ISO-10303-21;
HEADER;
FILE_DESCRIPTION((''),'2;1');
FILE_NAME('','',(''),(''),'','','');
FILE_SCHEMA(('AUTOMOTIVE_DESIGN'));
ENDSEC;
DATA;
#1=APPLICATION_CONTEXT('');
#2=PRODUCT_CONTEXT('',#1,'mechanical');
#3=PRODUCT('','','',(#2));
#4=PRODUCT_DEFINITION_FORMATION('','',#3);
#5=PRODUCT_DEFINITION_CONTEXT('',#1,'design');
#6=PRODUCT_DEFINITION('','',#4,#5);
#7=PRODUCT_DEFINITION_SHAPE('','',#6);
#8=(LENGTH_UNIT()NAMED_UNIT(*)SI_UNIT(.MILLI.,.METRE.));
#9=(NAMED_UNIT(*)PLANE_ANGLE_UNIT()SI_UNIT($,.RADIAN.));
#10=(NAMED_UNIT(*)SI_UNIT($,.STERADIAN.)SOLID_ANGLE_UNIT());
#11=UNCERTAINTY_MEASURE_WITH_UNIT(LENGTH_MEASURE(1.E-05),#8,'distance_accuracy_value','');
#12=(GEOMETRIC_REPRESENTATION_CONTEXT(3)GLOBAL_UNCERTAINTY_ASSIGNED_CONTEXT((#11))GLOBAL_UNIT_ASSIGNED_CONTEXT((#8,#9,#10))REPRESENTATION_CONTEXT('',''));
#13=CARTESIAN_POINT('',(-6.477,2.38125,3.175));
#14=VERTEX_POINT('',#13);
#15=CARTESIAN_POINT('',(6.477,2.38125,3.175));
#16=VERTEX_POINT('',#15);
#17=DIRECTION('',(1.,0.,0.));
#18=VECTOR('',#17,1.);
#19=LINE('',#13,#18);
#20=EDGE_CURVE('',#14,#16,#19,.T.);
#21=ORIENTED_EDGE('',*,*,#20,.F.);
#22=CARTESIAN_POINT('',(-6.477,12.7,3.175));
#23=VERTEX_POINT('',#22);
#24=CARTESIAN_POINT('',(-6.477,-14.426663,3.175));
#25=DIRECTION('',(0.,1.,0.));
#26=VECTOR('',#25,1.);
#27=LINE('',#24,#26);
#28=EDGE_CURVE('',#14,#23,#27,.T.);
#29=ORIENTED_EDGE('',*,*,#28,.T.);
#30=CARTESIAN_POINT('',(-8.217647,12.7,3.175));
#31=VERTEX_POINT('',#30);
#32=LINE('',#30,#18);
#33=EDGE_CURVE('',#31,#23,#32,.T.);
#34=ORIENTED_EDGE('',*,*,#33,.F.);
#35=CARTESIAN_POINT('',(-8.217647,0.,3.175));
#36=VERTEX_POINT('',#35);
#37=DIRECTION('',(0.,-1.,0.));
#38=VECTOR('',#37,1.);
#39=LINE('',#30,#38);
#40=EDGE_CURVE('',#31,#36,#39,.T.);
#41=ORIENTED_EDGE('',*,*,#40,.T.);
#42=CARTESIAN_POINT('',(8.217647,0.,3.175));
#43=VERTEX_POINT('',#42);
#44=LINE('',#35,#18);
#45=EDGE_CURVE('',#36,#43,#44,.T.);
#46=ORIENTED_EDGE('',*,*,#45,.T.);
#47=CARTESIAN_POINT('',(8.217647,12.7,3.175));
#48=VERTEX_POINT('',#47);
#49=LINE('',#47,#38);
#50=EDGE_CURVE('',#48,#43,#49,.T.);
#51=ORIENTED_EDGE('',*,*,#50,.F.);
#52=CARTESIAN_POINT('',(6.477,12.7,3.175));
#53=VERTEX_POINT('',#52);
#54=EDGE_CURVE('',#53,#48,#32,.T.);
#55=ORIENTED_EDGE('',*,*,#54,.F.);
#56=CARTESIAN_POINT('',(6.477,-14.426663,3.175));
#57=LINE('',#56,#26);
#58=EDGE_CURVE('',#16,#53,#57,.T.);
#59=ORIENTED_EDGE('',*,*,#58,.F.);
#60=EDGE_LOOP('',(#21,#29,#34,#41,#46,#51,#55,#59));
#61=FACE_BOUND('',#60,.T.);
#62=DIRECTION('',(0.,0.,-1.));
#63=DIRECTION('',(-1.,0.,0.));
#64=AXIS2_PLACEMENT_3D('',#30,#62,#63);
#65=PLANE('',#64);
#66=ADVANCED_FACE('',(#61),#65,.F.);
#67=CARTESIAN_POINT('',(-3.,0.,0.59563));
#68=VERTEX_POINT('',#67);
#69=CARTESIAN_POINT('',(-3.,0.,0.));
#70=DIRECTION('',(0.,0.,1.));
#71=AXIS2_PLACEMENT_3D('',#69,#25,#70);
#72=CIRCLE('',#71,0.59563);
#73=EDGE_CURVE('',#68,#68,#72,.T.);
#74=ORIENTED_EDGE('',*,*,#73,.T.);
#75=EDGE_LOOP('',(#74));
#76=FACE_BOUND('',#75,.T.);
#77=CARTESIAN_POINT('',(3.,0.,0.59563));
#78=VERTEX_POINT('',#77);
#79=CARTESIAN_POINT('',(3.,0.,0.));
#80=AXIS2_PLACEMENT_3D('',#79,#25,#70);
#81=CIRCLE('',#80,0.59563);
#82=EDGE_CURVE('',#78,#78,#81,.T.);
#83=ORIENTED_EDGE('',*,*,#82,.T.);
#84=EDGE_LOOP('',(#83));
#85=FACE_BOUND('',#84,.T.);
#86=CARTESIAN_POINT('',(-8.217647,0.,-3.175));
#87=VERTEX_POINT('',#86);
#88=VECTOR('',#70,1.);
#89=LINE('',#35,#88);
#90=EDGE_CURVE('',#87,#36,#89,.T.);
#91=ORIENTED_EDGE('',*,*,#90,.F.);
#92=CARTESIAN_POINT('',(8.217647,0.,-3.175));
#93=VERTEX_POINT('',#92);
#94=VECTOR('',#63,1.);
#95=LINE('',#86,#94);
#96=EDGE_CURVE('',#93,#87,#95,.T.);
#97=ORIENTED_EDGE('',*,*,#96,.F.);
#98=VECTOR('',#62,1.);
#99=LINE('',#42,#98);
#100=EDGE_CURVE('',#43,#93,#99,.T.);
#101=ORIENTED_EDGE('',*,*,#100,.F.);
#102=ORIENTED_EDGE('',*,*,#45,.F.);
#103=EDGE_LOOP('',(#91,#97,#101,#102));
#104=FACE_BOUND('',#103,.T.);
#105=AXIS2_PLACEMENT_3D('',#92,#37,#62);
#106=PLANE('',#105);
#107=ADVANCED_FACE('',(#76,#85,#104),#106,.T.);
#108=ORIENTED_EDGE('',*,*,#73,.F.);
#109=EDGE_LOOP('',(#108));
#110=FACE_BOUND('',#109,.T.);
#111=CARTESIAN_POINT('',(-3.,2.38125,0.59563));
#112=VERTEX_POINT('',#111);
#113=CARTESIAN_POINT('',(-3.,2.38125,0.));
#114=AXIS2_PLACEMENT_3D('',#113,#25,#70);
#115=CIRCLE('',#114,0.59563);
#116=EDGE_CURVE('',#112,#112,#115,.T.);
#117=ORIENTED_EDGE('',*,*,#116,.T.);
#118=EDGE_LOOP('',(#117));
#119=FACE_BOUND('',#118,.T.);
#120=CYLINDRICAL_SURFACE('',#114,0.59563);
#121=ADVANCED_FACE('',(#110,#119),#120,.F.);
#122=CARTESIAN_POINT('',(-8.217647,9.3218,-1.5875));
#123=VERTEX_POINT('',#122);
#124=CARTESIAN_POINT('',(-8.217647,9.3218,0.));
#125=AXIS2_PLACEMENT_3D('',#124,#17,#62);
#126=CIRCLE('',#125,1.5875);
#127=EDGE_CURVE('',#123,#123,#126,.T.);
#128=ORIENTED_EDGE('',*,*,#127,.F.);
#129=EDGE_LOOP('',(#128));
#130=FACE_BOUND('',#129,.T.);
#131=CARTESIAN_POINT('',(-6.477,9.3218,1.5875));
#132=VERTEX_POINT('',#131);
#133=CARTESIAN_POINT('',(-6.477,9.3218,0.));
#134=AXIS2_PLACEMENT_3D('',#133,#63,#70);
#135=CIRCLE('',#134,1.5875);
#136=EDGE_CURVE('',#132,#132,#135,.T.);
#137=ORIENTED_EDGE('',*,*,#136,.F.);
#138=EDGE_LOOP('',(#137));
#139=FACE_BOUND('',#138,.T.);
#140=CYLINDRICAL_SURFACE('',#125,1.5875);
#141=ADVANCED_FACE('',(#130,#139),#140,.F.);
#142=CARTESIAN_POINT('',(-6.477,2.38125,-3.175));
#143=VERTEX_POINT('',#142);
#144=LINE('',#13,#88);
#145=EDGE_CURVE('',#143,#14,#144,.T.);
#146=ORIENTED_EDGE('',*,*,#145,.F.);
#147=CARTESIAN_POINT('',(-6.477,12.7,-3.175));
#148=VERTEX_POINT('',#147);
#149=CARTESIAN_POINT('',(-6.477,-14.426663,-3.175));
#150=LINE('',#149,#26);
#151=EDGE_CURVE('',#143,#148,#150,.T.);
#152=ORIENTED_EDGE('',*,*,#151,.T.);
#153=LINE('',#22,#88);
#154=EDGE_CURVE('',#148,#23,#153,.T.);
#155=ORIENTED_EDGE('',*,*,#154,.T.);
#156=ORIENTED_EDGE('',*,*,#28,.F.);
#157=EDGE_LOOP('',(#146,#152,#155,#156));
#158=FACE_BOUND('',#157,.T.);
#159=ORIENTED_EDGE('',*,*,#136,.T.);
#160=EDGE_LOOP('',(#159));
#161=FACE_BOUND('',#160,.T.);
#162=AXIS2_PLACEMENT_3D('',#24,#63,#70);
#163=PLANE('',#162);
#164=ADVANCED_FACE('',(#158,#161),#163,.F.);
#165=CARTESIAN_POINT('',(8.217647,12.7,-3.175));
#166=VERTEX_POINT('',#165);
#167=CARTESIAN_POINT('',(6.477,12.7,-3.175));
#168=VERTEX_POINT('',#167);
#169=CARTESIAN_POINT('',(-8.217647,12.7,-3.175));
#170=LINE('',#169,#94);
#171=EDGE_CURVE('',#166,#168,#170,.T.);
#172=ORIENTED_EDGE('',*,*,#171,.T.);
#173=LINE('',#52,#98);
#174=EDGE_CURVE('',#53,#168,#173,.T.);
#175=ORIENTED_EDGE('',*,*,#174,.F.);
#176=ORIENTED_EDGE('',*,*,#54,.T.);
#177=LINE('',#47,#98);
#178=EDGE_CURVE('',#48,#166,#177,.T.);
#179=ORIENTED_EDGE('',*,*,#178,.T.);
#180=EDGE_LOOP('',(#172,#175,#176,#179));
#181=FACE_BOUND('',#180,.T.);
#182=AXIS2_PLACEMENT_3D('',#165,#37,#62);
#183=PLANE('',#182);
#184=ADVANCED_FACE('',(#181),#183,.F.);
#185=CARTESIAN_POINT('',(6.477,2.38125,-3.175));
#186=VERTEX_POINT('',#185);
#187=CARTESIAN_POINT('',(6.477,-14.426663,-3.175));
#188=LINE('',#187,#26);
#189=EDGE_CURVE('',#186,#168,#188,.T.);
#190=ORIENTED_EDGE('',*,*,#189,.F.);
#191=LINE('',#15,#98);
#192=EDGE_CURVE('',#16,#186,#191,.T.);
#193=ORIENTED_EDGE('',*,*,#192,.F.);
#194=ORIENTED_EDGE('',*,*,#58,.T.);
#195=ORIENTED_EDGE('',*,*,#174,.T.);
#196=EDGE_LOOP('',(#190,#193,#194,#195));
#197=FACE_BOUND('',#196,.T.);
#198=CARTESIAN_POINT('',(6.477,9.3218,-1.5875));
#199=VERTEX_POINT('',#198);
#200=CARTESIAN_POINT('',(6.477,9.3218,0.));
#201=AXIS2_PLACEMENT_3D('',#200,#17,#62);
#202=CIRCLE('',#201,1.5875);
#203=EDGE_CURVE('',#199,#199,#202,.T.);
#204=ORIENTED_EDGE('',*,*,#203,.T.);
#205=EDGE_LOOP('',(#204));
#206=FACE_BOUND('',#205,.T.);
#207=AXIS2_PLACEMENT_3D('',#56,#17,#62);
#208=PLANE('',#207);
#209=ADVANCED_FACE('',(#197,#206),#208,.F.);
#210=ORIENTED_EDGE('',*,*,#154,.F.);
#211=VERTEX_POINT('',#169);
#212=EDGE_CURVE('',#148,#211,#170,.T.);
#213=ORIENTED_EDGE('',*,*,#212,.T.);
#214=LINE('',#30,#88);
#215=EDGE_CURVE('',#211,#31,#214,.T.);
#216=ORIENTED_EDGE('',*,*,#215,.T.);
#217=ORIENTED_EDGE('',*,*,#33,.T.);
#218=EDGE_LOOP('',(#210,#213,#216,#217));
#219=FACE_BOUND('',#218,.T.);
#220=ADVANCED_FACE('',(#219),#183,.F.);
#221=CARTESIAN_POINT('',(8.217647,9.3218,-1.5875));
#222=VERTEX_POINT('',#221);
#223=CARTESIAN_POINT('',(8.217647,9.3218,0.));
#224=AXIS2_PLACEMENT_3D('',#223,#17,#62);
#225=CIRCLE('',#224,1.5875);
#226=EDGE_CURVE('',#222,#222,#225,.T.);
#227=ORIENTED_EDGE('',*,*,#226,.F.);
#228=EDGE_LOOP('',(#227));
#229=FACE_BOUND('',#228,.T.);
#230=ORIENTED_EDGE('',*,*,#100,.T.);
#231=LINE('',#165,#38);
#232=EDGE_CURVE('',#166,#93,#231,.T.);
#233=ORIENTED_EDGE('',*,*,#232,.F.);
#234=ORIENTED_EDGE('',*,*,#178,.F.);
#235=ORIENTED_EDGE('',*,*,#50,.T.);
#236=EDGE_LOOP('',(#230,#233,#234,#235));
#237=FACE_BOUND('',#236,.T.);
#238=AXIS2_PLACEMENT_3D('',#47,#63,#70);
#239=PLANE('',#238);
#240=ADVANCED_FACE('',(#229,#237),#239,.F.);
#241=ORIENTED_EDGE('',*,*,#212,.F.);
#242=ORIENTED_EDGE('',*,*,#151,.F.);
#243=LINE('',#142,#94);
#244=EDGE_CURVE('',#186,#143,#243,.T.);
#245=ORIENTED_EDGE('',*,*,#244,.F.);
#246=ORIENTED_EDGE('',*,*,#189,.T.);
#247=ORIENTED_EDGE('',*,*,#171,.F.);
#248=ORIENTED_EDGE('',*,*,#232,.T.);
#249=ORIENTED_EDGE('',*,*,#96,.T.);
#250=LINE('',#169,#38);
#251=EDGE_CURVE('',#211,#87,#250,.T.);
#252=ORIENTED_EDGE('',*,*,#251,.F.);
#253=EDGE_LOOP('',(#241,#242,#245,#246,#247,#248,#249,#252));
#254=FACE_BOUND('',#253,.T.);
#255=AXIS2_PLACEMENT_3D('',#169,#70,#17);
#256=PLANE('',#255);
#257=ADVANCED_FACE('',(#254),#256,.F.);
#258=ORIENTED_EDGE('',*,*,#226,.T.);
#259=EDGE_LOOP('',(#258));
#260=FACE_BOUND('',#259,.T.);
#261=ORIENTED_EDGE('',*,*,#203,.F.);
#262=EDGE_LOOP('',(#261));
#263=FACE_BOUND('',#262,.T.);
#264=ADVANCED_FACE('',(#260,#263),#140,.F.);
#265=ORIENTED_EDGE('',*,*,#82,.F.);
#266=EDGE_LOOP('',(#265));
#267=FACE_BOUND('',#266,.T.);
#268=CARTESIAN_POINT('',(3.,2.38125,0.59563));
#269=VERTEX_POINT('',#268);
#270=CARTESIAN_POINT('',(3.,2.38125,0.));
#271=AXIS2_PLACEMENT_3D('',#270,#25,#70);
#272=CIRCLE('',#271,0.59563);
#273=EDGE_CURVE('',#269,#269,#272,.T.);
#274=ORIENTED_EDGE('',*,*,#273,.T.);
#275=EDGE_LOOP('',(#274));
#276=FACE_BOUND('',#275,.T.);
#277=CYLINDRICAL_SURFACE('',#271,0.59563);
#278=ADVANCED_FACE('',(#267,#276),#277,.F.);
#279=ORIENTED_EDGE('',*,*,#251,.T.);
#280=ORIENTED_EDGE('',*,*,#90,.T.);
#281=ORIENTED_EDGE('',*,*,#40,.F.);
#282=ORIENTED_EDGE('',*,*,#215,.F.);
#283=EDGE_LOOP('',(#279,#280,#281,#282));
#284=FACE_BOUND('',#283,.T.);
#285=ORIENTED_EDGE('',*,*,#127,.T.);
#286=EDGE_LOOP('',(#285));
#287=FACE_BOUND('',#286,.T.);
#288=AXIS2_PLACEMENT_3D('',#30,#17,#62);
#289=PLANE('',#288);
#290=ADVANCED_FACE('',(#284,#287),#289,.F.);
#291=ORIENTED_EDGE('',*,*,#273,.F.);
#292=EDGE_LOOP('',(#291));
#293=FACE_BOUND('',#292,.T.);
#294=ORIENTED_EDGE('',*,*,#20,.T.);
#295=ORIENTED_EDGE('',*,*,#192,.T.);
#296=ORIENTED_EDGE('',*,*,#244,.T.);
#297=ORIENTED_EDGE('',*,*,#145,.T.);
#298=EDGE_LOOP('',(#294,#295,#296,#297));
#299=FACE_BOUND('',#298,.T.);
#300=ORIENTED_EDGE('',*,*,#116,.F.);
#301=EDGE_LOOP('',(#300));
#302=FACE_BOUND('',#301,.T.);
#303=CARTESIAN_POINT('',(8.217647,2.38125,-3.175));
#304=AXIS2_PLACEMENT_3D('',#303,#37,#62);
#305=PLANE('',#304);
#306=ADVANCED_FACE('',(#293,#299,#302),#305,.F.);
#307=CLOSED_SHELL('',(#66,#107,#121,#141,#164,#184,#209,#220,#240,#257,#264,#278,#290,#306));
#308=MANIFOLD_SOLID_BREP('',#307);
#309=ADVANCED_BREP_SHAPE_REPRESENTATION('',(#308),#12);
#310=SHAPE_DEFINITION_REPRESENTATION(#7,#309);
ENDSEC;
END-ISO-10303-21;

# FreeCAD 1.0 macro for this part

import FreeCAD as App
import Part
import Sketcher
Q = App.Units.Quantity


def add_polygon(sketch, points):
    """Adds a closed chain of lines whose ends are joined by coincident constraints."""
    first, n = sketch.GeometryCount, len(points)
    for a, b in zip(points, points[1:] + points[:1]):
        sketch.addGeometry(Part.LineSegment(App.Vector(*a, 0), App.Vector(*b, 0)), False)
    for i in range(n):
        sketch.addConstraint(Sketcher.Constraint("Coincident", first + i, 2, first + (i + 1) % n, 1))

doc = App.newDocument("Part")
body = doc.addObject("PartDesign::Body", "Body")

# Sketch on XZ plane
sketch1 = body.newObject("Sketcher::SketchObject", "Sketch")
sketch1.AttachmentSupport = (doc.getObject("XZ_Plane"), [""])
sketch1.MapMode = "FlatFace"
add_polygon(sketch1, [(-8, -3), (-8, 3), (8, 3), (8, -3)])  # lines 0-3
sketch1.addConstraint([
    Sketcher.Constraint("Vertical", 0),
    Sketcher.Constraint("Horizontal", 1),
    Sketcher.Constraint("Vertical", 2),
    Sketcher.Constraint("Horizontal", 3),
    Sketcher.Constraint("Symmetric", 0, 2, 2, 2, -1, 1),
    Sketcher.Constraint("DistanceY", 0, 1, 0, 2, Q("0.25 in")),
    Sketcher.Constraint("DistanceX", 1, 1, 1, 2, Q("16.435294 mm")),
])
pad1 = body.newObject("PartDesign::Pad", "Pad")
pad1.Profile = sketch1
pad1.Length = Q("0.5 in")
pad1.Reversed = True

# Sketch on XZ plane
sketch2 = body.newObject("Sketcher::SketchObject", "Sketch001")
sketch2.AttachmentSupport = (doc.getObject("XZ_Plane"), [""])
sketch2.MapMode = "FlatFace"
sketch2.AttachmentOffset = App.Placement(App.Vector(0, 0, -0.5 * 25.4), App.Rotation())
add_polygon(sketch2, [(6, 3), (6, -3), (-6, -3), (-6, 3)])  # lines 0-3
sketch2.addConstraint([
    Sketcher.Constraint("Vertical", 0),
    Sketcher.Constraint("Horizontal", 1),
    Sketcher.Constraint("Vertical", 2),
    Sketcher.Constraint("Horizontal", 3),
    Sketcher.Constraint("Symmetric", 0, 2, 2, 2, -1, 1),
    Sketcher.Constraint("DistanceX", 1, 2, 1, 1, Q("0.51 in")),
    Sketcher.Constraint("DistanceY", 0, 2, 0, 1, Q("0.25 in")),
])
pocket1 = body.newObject("PartDesign::Pocket", "Pocket")
pocket1.Profile = sketch2
pocket1.Length = Q("0.40625 in")
pocket1.Reversed = True

# Sketch on YZ plane
sketch3 = body.newObject("Sketcher::SketchObject", "Sketch002")
sketch3.AttachmentSupport = (doc.getObject("YZ_Plane"), [""])
sketch3.MapMode = "FlatFace"
sketch3.AttachmentOffset = App.Placement(App.Vector(0, 0, 8.217647), App.Rotation())
sketch3.addGeometry(Part.Circle(App.Vector(9.3, 0, 0), App.Vector(0, 0, 1), 1.6), False)
sketch3.addConstraint([
    Sketcher.Constraint("PointOnObject", 0, 3, -1),
    Sketcher.Constraint("Diameter", 0, Q("0.125 in")),
    Sketcher.Constraint("DistanceX", -1, 1, 0, 3, Q("0.367 in")),
])
pocket2 = body.newObject("PartDesign::Pocket", "Pocket001")
pocket2.Profile = sketch3
pocket2.Type = "ThroughAll"

# Sketch on XZ plane
sketch4 = body.newObject("Sketcher::SketchObject", "Sketch003")
sketch4.AttachmentSupport = (doc.getObject("XZ_Plane"), [""])
sketch4.MapMode = "FlatFace"
sketch4.AttachmentOffset = App.Placement(App.Vector(0, 0, -0.09375 * 25.4), App.Rotation())
sketch4.addGeometry([
    Part.Circle(App.Vector(-3, 0, 0), App.Vector(0, 0, 1), 0.6),
    Part.Circle(App.Vector(3, 0, 0), App.Vector(0, 0, 1), 0.6),
], False)
sketch4.addConstraint([
    Sketcher.Constraint("Equal", 0, 1),
    Sketcher.Constraint("Symmetric", 0, 3, 1, 3, -1, 1),
    Sketcher.Constraint("PointOnObject", 0, 3, -1),
    Sketcher.Constraint("Diameter", 0, Q("0.0469 in")),
    Sketcher.Constraint("DistanceX", 0, 3, -1, 1, Q("3 mm")),
])
doc.recompute()
hole = body.newObject("PartDesign::Hole", "Hole")
hole.Profile = sketch4
hole.ThreadType = "None"
hole.Diameter = Q("0.0469 in")
hole.DepthType = "ThroughAll"
hole.Reversed = True

doc.recompute()
